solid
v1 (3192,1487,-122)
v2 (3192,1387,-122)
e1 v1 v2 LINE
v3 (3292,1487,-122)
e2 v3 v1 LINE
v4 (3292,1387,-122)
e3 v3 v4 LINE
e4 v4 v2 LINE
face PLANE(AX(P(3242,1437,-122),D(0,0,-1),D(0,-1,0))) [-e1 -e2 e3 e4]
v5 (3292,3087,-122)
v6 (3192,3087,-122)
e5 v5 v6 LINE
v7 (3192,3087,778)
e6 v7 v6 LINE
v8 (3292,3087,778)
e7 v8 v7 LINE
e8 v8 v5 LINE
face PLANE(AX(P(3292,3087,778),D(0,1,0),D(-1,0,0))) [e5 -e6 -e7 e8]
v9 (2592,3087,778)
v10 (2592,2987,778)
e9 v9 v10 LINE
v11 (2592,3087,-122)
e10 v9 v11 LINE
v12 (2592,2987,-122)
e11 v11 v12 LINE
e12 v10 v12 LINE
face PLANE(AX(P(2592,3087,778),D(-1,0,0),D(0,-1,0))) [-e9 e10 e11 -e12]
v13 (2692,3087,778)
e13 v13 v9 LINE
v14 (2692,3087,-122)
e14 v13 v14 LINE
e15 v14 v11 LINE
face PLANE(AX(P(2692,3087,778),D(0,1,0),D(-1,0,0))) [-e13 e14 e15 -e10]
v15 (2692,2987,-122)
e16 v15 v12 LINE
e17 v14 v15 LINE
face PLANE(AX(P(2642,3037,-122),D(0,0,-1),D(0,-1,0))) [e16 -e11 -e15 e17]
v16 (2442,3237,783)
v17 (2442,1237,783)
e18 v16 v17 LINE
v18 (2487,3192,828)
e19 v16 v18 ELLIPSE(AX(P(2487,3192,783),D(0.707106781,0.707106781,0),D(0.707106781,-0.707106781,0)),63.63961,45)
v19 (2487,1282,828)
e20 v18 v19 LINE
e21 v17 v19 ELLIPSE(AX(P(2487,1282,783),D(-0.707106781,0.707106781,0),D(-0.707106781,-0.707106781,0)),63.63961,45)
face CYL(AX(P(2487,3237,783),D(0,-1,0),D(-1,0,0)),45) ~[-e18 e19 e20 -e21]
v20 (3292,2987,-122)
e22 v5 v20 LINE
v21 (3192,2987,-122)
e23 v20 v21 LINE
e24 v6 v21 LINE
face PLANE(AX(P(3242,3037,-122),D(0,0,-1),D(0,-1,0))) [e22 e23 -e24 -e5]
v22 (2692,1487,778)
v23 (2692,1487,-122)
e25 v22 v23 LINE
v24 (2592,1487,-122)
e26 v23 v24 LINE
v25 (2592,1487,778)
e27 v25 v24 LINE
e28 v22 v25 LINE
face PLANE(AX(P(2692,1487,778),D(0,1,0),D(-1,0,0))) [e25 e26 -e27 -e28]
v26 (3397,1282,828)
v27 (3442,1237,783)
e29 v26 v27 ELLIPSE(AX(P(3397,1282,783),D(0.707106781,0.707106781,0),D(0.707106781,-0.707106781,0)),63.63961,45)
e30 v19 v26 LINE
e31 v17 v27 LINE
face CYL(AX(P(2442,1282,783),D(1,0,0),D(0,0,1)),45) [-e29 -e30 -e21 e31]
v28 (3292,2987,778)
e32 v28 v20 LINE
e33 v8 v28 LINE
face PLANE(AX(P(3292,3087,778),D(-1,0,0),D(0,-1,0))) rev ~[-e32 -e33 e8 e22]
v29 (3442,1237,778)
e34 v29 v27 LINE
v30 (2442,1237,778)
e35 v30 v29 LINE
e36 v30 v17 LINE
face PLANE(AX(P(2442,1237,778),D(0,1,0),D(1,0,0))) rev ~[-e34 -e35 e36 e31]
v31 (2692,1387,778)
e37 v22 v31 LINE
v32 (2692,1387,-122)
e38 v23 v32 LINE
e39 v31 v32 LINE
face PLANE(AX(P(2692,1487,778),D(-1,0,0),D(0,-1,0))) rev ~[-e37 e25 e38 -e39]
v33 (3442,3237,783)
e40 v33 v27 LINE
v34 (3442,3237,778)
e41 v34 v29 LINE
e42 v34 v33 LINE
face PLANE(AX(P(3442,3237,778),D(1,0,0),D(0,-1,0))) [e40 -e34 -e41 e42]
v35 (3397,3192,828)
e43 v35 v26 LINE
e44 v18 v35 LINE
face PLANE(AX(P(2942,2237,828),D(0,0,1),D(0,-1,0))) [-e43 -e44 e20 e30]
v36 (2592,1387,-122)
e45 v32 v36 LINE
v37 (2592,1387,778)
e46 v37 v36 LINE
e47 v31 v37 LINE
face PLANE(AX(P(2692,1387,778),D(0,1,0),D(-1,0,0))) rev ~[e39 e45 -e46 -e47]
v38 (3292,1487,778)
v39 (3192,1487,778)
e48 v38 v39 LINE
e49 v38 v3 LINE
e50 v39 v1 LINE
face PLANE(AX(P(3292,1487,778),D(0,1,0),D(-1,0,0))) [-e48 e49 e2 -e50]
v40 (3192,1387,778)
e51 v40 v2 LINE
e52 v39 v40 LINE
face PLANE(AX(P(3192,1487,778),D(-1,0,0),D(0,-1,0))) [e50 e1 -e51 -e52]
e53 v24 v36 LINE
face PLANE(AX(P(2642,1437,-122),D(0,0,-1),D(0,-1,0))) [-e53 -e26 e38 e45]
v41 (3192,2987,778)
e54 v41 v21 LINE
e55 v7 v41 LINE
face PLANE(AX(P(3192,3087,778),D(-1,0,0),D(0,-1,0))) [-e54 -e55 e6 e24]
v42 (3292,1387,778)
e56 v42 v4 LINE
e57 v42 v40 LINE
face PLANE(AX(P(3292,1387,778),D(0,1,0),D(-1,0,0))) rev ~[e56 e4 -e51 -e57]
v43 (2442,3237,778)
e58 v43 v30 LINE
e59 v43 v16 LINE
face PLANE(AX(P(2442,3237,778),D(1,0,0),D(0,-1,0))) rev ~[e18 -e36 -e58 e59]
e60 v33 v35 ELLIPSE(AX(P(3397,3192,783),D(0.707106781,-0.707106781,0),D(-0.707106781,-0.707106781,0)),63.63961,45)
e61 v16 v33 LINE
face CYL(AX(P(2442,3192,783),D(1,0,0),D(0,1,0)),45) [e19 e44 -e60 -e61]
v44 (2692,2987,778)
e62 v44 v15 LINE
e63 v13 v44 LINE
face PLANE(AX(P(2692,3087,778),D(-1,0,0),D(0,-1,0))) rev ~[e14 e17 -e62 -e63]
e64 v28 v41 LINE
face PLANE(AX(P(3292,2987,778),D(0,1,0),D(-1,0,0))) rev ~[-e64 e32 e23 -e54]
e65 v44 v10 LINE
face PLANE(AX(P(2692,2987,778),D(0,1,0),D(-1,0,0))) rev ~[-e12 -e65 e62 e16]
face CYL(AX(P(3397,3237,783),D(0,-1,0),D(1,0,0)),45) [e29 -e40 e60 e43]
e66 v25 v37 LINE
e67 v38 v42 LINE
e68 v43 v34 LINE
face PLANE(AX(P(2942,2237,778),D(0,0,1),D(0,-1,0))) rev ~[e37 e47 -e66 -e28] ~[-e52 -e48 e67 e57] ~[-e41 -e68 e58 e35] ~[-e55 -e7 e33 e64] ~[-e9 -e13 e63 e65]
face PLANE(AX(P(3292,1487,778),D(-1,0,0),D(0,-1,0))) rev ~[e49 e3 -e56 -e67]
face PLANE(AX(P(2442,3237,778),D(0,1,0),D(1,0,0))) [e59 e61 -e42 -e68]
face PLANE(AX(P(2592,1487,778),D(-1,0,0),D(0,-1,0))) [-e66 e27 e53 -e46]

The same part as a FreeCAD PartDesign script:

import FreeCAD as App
import Part
import Sketcher
from FreeCAD import Vector
Q = App.Units.Quantity


def edges_at(feature, points):
    """Names of the edges that pass closest to the given points."""
    edges = feature.Shape.Edges
    near = lambda p: min(range(len(edges)), key=lambda i: edges[i].distToShape(Part.Vertex(*p))[0])
    return sorted({f"Edge{near(p) + 1}" for p in points})

doc = App.newDocument("Part")
body = doc.addObject("PartDesign::Body", "Body")

# Sketch on XY plane
sketch1 = body.newObject("Sketcher::SketchObject", "Sketch")
sketch1.AttachmentSupport = (doc.getObject("XY_Plane"), [""])
sketch1.MapMode = "FlatFace"
sketch1.addGeometry([
    Part.LineSegment(Vector(0, 1000, 0), Vector(0, 0, 0)),
    Part.LineSegment(Vector(0, 0, 0), Vector(2000, 0, 0)),
    Part.LineSegment(Vector(2000, 0, 0), Vector(2000, 1000, 0)),
    Part.LineSegment(Vector(2000, 1000, 0), Vector(0, 1000, 0)),
], False)
sketch1.addConstraint([
    Sketcher.Constraint("Coincident", 0, 2, 1, 1),
    Sketcher.Constraint("Coincident", 1, 2, 2, 1),
    Sketcher.Constraint("Coincident", 2, 2, 3, 1),
    Sketcher.Constraint("Coincident", 3, 2, 0, 1),
    Sketcher.Constraint("Vertical", 0),
    Sketcher.Constraint("Horizontal", 1),
    Sketcher.Constraint("Vertical", 2),
    Sketcher.Constraint("Horizontal", 3),
    Sketcher.Constraint("Coincident", 0, 2, -1, 1),
    Sketcher.Constraint("DistanceX", 1, 1, 1, 2, Q("2000 mm")),
    Sketcher.Constraint("DistanceY", 0, 2, 0, 1, Q("1000 mm")),
])
pad1 = body.newObject("PartDesign::Pad", "Pad")
pad1.Profile = sketch1
pad1.Length = 50

# Sketch on XY plane
sketch2 = body.newObject("Sketcher::SketchObject", "Sketch001")
sketch2.AttachmentSupport = (doc.getObject("XY_Plane"), [""])
sketch2.MapMode = "FlatFace"
sketch2.addGeometry([
    Part.LineSegment(Vector(150, 150, 0), Vector(150, 250, 0)),
    Part.LineSegment(Vector(150, 250, 0), Vector(250, 250, 0)),
    Part.LineSegment(Vector(250, 250, 0), Vector(250, 150, 0)),
    Part.LineSegment(Vector(250, 150, 0), Vector(150, 150, 0)),
], False)
sketch2.addConstraint([
    Sketcher.Constraint("Coincident", 0, 2, 1, 1),
    Sketcher.Constraint("Coincident", 1, 2, 2, 1),
    Sketcher.Constraint("Coincident", 2, 2, 3, 1),
    Sketcher.Constraint("Coincident", 3, 2, 0, 1),
    Sketcher.Constraint("Vertical", 0),
    Sketcher.Constraint("Horizontal", 1),
    Sketcher.Constraint("Vertical", 2),
    Sketcher.Constraint("Horizontal", 3),
    Sketcher.Constraint("Equal", 3, 0),
    Sketcher.Constraint("DistanceX", 1, 1, 1, 2, Q("100 mm")),
    Sketcher.Constraint("DistanceX", -1, 1, 0, 2, Q("150 mm")),
    Sketcher.Constraint("DistanceY", -1, 1, 0, 2, Q("250 mm")),
])
pad2 = body.newObject("PartDesign::Pad", "Pad001")
pad2.Profile = sketch2
pad2.Length = 900
pad2.Reversed = True

# Sketch on XY plane
sketch3 = body.newObject("Sketcher::SketchObject", "Sketch002")
sketch3.AttachmentSupport = (doc.getObject("XY_Plane"), [""])
sketch3.MapMode = "FlatFace"
sketch3.addGeometry([
    Part.LineSegment(Vector(1750, 150, 0), Vector(1750, 250, 0)),
    Part.LineSegment(Vector(1750, 250, 0), Vector(1850, 250, 0)),
    Part.LineSegment(Vector(1850, 250, 0), Vector(1850, 150, 0)),
    Part.LineSegment(Vector(1850, 150, 0), Vector(1750, 150, 0)),
], False)
sketch3.addConstraint([
    Sketcher.Constraint("Coincident", 0, 2, 1, 1),
    Sketcher.Constraint("Coincident", 1, 2, 2, 1),
    Sketcher.Constraint("Coincident", 2, 2, 3, 1),
    Sketcher.Constraint("Coincident", 3, 2, 0, 1),
    Sketcher.Constraint("Vertical", 0),
    Sketcher.Constraint("Horizontal", 1),
    Sketcher.Constraint("Vertical", 2),
    Sketcher.Constraint("Horizontal", 3),
    Sketcher.Constraint("Equal", 3, 0),
    Sketcher.Constraint("DistanceX", 1, 1, 1, 2, Q("100 mm")),
    Sketcher.Constraint("DistanceX", -1, 1, 0, 2, Q("1750 mm")),
    Sketcher.Constraint("DistanceY", -1, 1, 0, 2, Q("250 mm")),
])
pad3 = body.newObject("PartDesign::Pad", "Pad002")
pad3.Profile = sketch3
pad3.Length = 900
pad3.Reversed = True

# Sketch on XY plane
sketch4 = body.newObject("Sketcher::SketchObject", "Sketch003")
sketch4.AttachmentSupport = (doc.getObject("XY_Plane"), [""])
sketch4.MapMode = "FlatFace"
sketch4.addGeometry([
    Part.LineSegment(Vector(150, 750, 0), Vector(150, 850, 0)),
    Part.LineSegment(Vector(150, 850, 0), Vector(250, 850, 0)),
    Part.LineSegment(Vector(250, 850, 0), Vector(250, 750, 0)),
    Part.LineSegment(Vector(250, 750, 0), Vector(150, 750, 0)),
], False)
sketch4.addConstraint([
    Sketcher.Constraint("Coincident", 0, 2, 1, 1),
    Sketcher.Constraint("Coincident", 1, 2, 2, 1),
    Sketcher.Constraint("Coincident", 2, 2, 3, 1),
    Sketcher.Constraint("Coincident", 3, 2, 0, 1),
    Sketcher.Constraint("Vertical", 0),
    Sketcher.Constraint("Horizontal", 1),
    Sketcher.Constraint("Vertical", 2),
    Sketcher.Constraint("Horizontal", 3),
    Sketcher.Constraint("Equal", 3, 0),
    Sketcher.Constraint("DistanceX", 1, 1, 1, 2, Q("100 mm")),
    Sketcher.Constraint("DistanceX", -1, 1, 0, 2, Q("150 mm")),
    Sketcher.Constraint("DistanceY", -1, 1, 0, 2, Q("850 mm")),
])
pad4 = body.newObject("PartDesign::Pad", "Pad003")
pad4.Profile = sketch4
pad4.Length = 900
pad4.Reversed = True

# Sketch on XY plane
sketch5 = body.newObject("Sketcher::SketchObject", "Sketch004")
sketch5.AttachmentSupport = (doc.getObject("XY_Plane"), [""])
sketch5.MapMode = "FlatFace"
sketch5.addGeometry([
    Part.LineSegment(Vector(1750, 750, 0), Vector(1750, 850, 0)),
    Part.LineSegment(Vector(1750, 850, 0), Vector(1850, 850, 0)),
    Part.LineSegment(Vector(1850, 850, 0), Vector(1850, 750, 0)),
    Part.LineSegment(Vector(1850, 750, 0), Vector(1750, 750, 0)),
], False)
sketch5.addConstraint([
    Sketcher.Constraint("Coincident", 0, 2, 1, 1),
    Sketcher.Constraint("Coincident", 1, 2, 2, 1),
    Sketcher.Constraint("Coincident", 2, 2, 3, 1),
    Sketcher.Constraint("Coincident", 3, 2, 0, 1),
    Sketcher.Constraint("Vertical", 0),
    Sketcher.Constraint("Horizontal", 1),
    Sketcher.Constraint("Vertical", 2),
    Sketcher.Constraint("Horizontal", 3),
    Sketcher.Constraint("Equal", 3, 0),
    Sketcher.Constraint("DistanceX", 1, 1, 1, 2, Q("100 mm")),
    Sketcher.Constraint("DistanceX", -1, 1, 0, 2, Q("1750 mm")),
    Sketcher.Constraint("DistanceY", -1, 1, 0, 2, Q("850 mm")),
])
pad5 = body.newObject("PartDesign::Pad", "Pad004")
pad5.Profile = sketch5
pad5.Length = 900
pad5.Reversed = True
doc.recompute()

fillet = body.newObject("PartDesign::Fillet", "Fillet")
fillet.Base = (pad5, edges_at(pad5, [
    (1000, 0, 50),
    (2000, 500, 50),
    (1000, 1000, 50),
    (0, 500, 50),
]))
fillet.Radius = 45
body2 = doc.addObject("PartDesign::Body", "Body001")
doc.recompute()

body.Placement = App.Placement(Vector(2442, 3237, 778), App.Rotation(Vector(0, 0, -1), 90))
boolean = body2.newObject("PartDesign::Boolean", "Boolean")
boolean.Type = "Fuse"
boolean.addObjects([body])

doc.recompute()
